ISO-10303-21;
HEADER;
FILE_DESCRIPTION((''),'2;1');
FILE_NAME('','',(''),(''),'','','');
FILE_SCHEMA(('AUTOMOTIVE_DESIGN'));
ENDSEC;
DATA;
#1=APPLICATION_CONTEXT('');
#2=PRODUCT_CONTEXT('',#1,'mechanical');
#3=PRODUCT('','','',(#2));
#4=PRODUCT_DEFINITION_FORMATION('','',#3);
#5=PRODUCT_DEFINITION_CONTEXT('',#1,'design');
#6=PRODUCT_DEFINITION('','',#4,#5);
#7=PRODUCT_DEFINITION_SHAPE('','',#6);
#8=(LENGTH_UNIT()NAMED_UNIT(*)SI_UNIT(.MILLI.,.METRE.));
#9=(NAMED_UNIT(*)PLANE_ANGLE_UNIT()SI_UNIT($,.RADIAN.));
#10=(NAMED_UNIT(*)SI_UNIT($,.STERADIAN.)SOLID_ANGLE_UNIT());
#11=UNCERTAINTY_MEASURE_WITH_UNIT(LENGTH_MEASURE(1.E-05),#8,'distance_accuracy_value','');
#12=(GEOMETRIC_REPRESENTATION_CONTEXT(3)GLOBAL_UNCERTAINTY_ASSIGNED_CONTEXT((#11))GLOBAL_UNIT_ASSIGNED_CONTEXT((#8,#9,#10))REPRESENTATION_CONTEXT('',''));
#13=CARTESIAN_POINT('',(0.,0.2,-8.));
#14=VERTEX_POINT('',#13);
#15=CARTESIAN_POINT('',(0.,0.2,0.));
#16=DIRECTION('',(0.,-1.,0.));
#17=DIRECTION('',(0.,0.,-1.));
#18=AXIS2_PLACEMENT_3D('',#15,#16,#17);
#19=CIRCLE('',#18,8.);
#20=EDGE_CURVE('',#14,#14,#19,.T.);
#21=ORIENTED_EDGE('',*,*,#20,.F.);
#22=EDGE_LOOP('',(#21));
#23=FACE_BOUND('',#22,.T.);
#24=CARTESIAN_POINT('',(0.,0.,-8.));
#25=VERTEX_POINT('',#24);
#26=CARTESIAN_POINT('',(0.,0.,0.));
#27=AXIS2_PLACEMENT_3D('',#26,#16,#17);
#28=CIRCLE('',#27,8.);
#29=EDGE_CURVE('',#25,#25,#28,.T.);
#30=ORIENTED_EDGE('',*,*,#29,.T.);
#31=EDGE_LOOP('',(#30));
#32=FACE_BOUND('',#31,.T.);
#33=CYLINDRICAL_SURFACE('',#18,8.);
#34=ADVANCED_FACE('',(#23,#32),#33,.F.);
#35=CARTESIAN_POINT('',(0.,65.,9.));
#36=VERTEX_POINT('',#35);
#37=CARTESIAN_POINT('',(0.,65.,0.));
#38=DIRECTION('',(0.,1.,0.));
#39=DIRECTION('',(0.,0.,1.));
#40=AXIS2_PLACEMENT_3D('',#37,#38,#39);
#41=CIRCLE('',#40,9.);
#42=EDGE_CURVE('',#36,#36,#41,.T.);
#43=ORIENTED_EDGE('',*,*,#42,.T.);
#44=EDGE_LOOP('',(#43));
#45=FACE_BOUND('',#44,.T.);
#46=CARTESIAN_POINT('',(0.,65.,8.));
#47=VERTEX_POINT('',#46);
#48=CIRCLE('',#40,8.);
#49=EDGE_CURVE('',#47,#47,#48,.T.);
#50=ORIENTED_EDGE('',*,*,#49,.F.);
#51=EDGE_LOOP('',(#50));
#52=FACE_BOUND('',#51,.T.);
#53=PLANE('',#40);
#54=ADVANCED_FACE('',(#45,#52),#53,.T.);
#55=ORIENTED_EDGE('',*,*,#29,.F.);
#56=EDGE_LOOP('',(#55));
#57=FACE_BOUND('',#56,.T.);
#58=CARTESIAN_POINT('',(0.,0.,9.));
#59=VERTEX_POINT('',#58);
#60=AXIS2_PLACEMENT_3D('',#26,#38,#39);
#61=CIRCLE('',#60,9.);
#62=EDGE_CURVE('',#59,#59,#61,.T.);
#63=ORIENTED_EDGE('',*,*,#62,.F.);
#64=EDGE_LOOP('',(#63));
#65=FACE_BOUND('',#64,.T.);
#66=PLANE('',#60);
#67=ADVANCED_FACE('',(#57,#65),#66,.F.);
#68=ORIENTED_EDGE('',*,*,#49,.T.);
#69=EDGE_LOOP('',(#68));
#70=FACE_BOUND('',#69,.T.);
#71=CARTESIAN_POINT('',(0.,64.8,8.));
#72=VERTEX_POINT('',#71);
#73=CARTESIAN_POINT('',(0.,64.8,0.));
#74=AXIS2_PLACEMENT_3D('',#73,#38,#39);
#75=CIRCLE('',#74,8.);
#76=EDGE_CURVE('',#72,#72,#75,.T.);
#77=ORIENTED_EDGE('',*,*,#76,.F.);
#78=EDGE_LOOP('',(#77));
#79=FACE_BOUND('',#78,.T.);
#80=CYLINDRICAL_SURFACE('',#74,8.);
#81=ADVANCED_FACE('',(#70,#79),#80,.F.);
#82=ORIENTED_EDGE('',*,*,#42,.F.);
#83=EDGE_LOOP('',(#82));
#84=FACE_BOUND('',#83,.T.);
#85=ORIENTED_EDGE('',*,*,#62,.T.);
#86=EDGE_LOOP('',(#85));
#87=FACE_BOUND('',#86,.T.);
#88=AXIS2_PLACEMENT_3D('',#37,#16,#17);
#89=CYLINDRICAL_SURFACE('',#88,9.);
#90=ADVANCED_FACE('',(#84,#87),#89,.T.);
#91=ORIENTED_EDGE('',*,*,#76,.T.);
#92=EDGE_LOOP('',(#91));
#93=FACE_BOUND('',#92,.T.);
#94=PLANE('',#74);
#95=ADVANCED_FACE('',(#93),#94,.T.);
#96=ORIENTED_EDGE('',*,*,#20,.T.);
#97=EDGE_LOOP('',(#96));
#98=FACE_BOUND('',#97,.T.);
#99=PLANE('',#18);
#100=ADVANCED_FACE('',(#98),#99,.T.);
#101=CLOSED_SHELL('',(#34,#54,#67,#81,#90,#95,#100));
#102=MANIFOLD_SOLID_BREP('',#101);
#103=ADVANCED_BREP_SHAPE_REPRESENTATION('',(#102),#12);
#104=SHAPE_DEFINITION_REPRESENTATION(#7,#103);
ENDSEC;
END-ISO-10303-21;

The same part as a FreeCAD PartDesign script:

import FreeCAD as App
import Part
import Sketcher
from FreeCAD import Vector

doc = App.newDocument("Part")
body = doc.addObject("PartDesign::Body", "Body")

sketch1 = body.newObject("Sketcher::SketchObject", "Sketch")
sketch1.AttachmentSupport = (doc.getObject("XZ_Plane"), [""])
sketch1.MapMode = "FlatFace"
sketch1.addGeometry(Part.Circle(Vector(0, 0, 0), Vector(0, 0, 1), 9), False)
sketch1.addConstraint([
    Sketcher.Constraint("Coincident", 0, 3, -1, 1),
    Sketcher.Constraint("Diameter", 0, 18.0),
])
pad1 = body.newObject("PartDesign::Pad", "Pad")
pad1.Profile = sketch1
pad1.Length = 65
pad1.Reversed = True

sketch2 = body.newObject("Sketcher::SketchObject", "Sketch001")
sketch2.AttachmentSupport = (doc.getObject("XZ_Plane"), [""])
sketch2.MapMode = "FlatFace"
sketch2.AttachmentOffset = App.Placement(Vector(0, 0, -65), App.Rotation())
sketch2.addGeometry(Part.Circle(Vector(0, 0, 0), Vector(0, 0, 1), 8), False)
sketch2.addConstraint([
    Sketcher.Constraint("Coincident", 0, 3, -1, 1),
    Sketcher.Constraint("Diameter", 0, 16.0),
])
pocket1 = body.newObject("PartDesign::Pocket", "Pocket")
pocket1.Profile = sketch2
pocket1.Length = 0.2
pocket1.Reversed = True

sketch3 = body.newObject("Sketcher::SketchObject", "Sketch002")
sketch3.AttachmentSupport = (doc.getObject("XZ_Plane"), [""])
sketch3.MapMode = "FlatFace"
sketch3.addGeometry(Part.Circle(Vector(0, 0, 0), Vector(0, 0, 1), 8), False)
sketch3.addConstraint([
    Sketcher.Constraint("Coincident", 0, 3, -1, 1),
    Sketcher.Constraint("Diameter", 0, 16.0),
])
pocket2 = body.newObject("PartDesign::Pocket", "Pocket001")
pocket2.Profile = sketch3
pocket2.Length = 0.2

doc.recompute()
